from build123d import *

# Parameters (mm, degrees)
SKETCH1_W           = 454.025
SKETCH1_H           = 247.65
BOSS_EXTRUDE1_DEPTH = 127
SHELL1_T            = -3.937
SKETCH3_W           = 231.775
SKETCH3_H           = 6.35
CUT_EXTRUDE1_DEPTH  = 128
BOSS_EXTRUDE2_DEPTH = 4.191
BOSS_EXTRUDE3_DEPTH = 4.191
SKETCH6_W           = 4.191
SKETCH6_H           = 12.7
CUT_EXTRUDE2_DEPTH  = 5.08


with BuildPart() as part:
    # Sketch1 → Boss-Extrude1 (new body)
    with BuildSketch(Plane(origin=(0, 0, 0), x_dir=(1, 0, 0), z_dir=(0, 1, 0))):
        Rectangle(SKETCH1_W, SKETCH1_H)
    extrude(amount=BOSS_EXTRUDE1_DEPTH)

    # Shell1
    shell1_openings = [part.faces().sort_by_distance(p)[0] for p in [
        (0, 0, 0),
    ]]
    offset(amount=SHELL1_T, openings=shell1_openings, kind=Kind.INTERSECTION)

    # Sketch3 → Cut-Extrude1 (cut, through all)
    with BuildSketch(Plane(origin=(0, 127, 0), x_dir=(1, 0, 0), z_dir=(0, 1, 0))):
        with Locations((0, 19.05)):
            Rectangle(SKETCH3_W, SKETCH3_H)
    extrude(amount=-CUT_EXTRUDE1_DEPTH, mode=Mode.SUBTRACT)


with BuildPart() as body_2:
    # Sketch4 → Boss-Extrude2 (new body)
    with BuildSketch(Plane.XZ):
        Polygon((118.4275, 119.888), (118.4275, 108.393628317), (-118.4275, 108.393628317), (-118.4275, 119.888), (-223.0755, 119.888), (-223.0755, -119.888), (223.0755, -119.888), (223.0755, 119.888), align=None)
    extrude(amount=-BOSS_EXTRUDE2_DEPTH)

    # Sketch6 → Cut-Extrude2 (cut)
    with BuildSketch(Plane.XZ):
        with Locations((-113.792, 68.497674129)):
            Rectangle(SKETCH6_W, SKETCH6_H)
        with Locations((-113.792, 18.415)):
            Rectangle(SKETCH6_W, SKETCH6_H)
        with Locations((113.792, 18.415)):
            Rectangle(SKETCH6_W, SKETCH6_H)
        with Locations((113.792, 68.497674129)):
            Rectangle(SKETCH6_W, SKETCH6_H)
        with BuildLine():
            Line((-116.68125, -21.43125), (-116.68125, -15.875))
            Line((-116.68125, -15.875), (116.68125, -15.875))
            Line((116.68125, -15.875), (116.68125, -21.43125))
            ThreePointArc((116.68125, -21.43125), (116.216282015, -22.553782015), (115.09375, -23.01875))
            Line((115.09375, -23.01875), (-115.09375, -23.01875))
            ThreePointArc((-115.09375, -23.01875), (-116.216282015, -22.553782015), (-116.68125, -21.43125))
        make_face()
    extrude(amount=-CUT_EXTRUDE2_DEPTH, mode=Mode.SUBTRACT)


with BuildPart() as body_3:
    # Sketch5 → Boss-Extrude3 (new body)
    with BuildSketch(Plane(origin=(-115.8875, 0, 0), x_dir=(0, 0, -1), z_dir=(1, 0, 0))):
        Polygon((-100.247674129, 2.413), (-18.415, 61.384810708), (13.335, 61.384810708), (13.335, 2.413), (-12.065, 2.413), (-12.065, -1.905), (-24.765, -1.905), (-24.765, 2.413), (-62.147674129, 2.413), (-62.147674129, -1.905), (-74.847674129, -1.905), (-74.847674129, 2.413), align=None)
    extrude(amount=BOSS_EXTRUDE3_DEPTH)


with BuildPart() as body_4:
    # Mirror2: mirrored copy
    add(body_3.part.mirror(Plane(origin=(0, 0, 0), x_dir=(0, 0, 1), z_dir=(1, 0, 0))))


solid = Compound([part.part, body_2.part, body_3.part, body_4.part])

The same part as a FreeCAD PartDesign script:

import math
import FreeCAD as App
import Part
import Sketcher
Q = App.Units.Quantity


def faces_at(feature, points):
    """Names of the faces that lie closest to the given points."""
    faces = feature.Shape.Faces
    near = lambda p: min(range(len(faces)), key=lambda i: faces[i].distToShape(Part.Vertex(*p))[0])
    return sorted({f"Face{near(p) + 1}" for p in points})

doc = App.newDocument("Part")
body = doc.addObject("PartDesign::Body", "Body")

# Sketch on XZ plane
sketch1 = body.newObject("Sketcher::SketchObject", "Sketch")
sketch1.AttachmentSupport = (doc.getObject("XZ_Plane"), [""])
sketch1.MapMode = "FlatFace"
sketch1.addGeometry([
    Part.LineSegment(App.Vector(-227.0125, -123.825, 0), App.Vector(-227.0125, 123.825, 0)),
    Part.LineSegment(App.Vector(-227.0125, 123.825, 0), App.Vector(227.0125, 123.825, 0)),
    Part.LineSegment(App.Vector(227.0125, 123.825, 0), App.Vector(227.0125, -123.825, 0)),
    Part.LineSegment(App.Vector(227.0125, -123.825, 0), App.Vector(-227.0125, -123.825, 0)),
], False)
sketch1.addConstraint([
    Sketcher.Constraint("Coincident", 0, 2, 1, 1),
    Sketcher.Constraint("Coincident", 1, 2, 2, 1),
    Sketcher.Constraint("Coincident", 2, 2, 3, 1),
    Sketcher.Constraint("Coincident", 3, 2, 0, 1),
    Sketcher.Constraint("Vertical", 0),
    Sketcher.Constraint("Horizontal", 1),
    Sketcher.Constraint("Vertical", 2),
    Sketcher.Constraint("Horizontal", 3),
    Sketcher.Constraint("Symmetric", 0, 2, 2, 2, -1, 1),
    Sketcher.Constraint("DistanceY", 0, 1, 0, 2, Q("9.75 in")),
    Sketcher.Constraint("DistanceX", 1, 1, 1, 2, Q("17.875 in")),
])
pad1 = body.newObject("PartDesign::Pad", "Pad")
pad1.Profile = sketch1
pad1.Length = Q("5 in")
pad1.Reversed = True
doc.recompute()

thickness = body.newObject("PartDesign::Thickness", "Thickness")
thickness.Base = (pad1, faces_at(pad1, [(0, 0, 0)]))
thickness.Value = Q("0.155 in")
thickness.Reversed = True
thickness.Join = "Intersection"

# Sketch on XZ plane
sketch2 = body.newObject("Sketcher::SketchObject", "Sketch001")
sketch2.AttachmentSupport = (doc.getObject("XZ_Plane"), [""])
sketch2.MapMode = "FlatFace"
sketch2.AttachmentOffset = App.Placement(App.Vector(0, 0, -5 * 25.4), App.Rotation())
sketch2.addGeometry([
    Part.LineSegment(App.Vector(-115.8875, -22.225, 0), App.Vector(-115.8875, -15.875, 0)),
    Part.LineSegment(App.Vector(-115.8875, -15.875, 0), App.Vector(115.8875, -15.875, 0)),
    Part.LineSegment(App.Vector(115.8875, -15.875, 0), App.Vector(115.8875, -22.225, 0)),
    Part.LineSegment(App.Vector(115.8875, -22.225, 0), App.Vector(-115.8875, -22.225, 0)),
], False)
sketch2.addConstraint([
    Sketcher.Constraint("Coincident", 0, 2, 1, 1),
    Sketcher.Constraint("Coincident", 1, 2, 2, 1),
    Sketcher.Constraint("Coincident", 2, 2, 3, 1),
    Sketcher.Constraint("Coincident", 3, 2, 0, 1),
    Sketcher.Constraint("Vertical", 0),
    Sketcher.Constraint("Horizontal", 1),
    Sketcher.Constraint("Vertical", 2),
    Sketcher.Constraint("Horizontal", 3),
    Sketcher.Constraint("DistanceY", 0, 1, 0, 2, Q("0.25 in")),
    Sketcher.Constraint("DistanceX", 1, 1, 1, 2, Q("9.125 in")),
    Sketcher.Constraint("DistanceX", 0, 2, -1, 1, Q("4.5625 in")),
    Sketcher.Constraint("DistanceY", 0, 2, -1, 1, Q("0.625 in")),
])
pocket1 = body.newObject("PartDesign::Pocket", "Pocket")
pocket1.Profile = sketch2
pocket1.Type = "ThroughAll"
pocket1.Reversed = True
body2 = doc.addObject("PartDesign::Body", "Body001")

# Sketch on XZ plane
sketch3 = body2.newObject("Sketcher::SketchObject", "Sketch002")
sketch3.AttachmentSupport = (doc.getObject("XZ_Plane001"), [""])
sketch3.MapMode = "FlatFace"
sketch3.addGeometry([
    Part.LineSegment(App.Vector(118.4275, 119.888, 0), App.Vector(118.4275, 108.393628, 0)),  # 0
    Part.LineSegment(App.Vector(118.4275, 108.393628, 0), App.Vector(-118.4275, 108.393628, 0)),  # 1
    Part.LineSegment(App.Vector(-118.4275, 108.393628, 0), App.Vector(-118.4275, 119.888, 0)),  # 2
    Part.LineSegment(App.Vector(-118.4275, 119.888, 0), App.Vector(-223.0755, 119.888, 0)),  # 3
    Part.LineSegment(App.Vector(-223.0755, 119.888, 0), App.Vector(-223.0755, -119.888, 0)),  # 4
    Part.LineSegment(App.Vector(-223.0755, -119.888, 0), App.Vector(223.0755, -119.888, 0)),  # 5
    Part.LineSegment(App.Vector(223.0755, -119.888, 0), App.Vector(223.0755, 119.888, 0)),  # 6
    Part.LineSegment(App.Vector(223.0755, 119.888, 0), App.Vector(118.4275, 119.888, 0)),  # 7
], False)
sketch3.addConstraint([
    Sketcher.Constraint("Coincident", 0, 2, 1, 1),
    Sketcher.Constraint("Coincident", 1, 2, 2, 1),
    Sketcher.Constraint("Coincident", 2, 2, 3, 1),
    Sketcher.Constraint("Coincident", 3, 2, 4, 1),
    Sketcher.Constraint("Coincident", 4, 2, 5, 1),
    Sketcher.Constraint("Coincident", 5, 2, 6, 1),
    Sketcher.Constraint("Coincident", 6, 2, 7, 1),
    Sketcher.Constraint("Coincident", 7, 2, 0, 1),
    Sketcher.Constraint("Vertical", 0),
    Sketcher.Constraint("Horizontal", 1),
    Sketcher.Constraint("Vertical", 2),
    Sketcher.Constraint("Horizontal", 3),
    Sketcher.Constraint("Vertical", 4),
    Sketcher.Constraint("Horizontal", 5),
    Sketcher.Constraint("Vertical", 6),
    Sketcher.Constraint("Horizontal", 7),
    Sketcher.Constraint("Symmetric", 3, 2, 5, 2, -1, 1),
    Sketcher.Constraint("Symmetric", 2, 2, 7, 2, -2),
    Sketcher.Constraint("DistanceX", 3, 2, 3, 1, Q("4.12 in")),
    Sketcher.Constraint("DistanceY", 4, 2, 4, 1, Q("9.44 in")),
    Sketcher.Constraint("DistanceX", 1, 2, 1, 1, Q("9.325 in")),
    Sketcher.Constraint("DistanceY", 0, 2, 0, 1, Q("11.494372 mm")),
])
pad2 = body2.newObject("PartDesign::Pad", "Pad001")
pad2.Profile = sketch3
pad2.Length = Q("0.165 in")
pad2.Reversed = True

# Sketch on XZ plane
sketch4 = body2.newObject("Sketcher::SketchObject", "Sketch003")
sketch4.AttachmentSupport = (doc.getObject("XZ_Plane001"), [""])
sketch4.MapMode = "FlatFace"
sketch4.addGeometry([
    Part.LineSegment(App.Vector(-115.8875, 74.847674, 0), App.Vector(-115.8875, 62.147674, 0)),  # 0
    Part.LineSegment(App.Vector(-115.8875, 62.147674, 0), App.Vector(-111.6965, 62.147674, 0)),  # 1
    Part.LineSegment(App.Vector(-111.6965, 62.147674, 0), App.Vector(-111.6965, 74.847674, 0)),  # 2
    Part.LineSegment(App.Vector(-111.6965, 74.847674, 0), App.Vector(-115.8875, 74.847674, 0)),  # 3
    Part.LineSegment(App.Vector(-115.8875, 24.765, 0), App.Vector(-115.8875, 12.065, 0)),  # 4
    Part.LineSegment(App.Vector(-115.8875, 12.065, 0), App.Vector(-111.6965, 12.065, 0)),  # 5
    Part.LineSegment(App.Vector(-111.6965, 12.065, 0), App.Vector(-111.6965, 24.765, 0)),  # 6
    Part.LineSegment(App.Vector(-111.6965, 24.765, 0), App.Vector(-115.8875, 24.765, 0)),  # 7
    Part.LineSegment(App.Vector(111.6965, 24.765, 0), App.Vector(111.6965, 12.065, 0)),  # 8
    Part.LineSegment(App.Vector(111.6965, 12.065, 0), App.Vector(115.8875, 12.065, 0)),  # 9
    Part.LineSegment(App.Vector(115.8875, 12.065, 0), App.Vector(115.8875, 24.765, 0)),  # 10
    Part.LineSegment(App.Vector(115.8875, 24.765, 0), App.Vector(111.6965, 24.765, 0)),  # 11
    Part.LineSegment(App.Vector(111.6965, 74.847674, 0), App.Vector(111.6965, 62.147674, 0)),  # 12
    Part.LineSegment(App.Vector(111.6965, 62.147674, 0), App.Vector(115.8875, 62.147674, 0)),  # 13
    Part.LineSegment(App.Vector(115.8875, 62.147674, 0), App.Vector(115.8875, 74.847674, 0)),  # 14
    Part.LineSegment(App.Vector(115.8875, 74.847674, 0), App.Vector(111.6965, 74.847674, 0)),  # 15
    Part.LineSegment(App.Vector(-116.68125, -15.875, 0), App.Vector(-116.68125, -21.43125, 0)),  # 16
    Part.ArcOfCircle(Part.Circle(App.Vector(-115.09375, -21.43125, 0), App.Vector(0, 0, 1), 1.5875), math.radians(180), math.radians(270)),  # 17
    Part.LineSegment(App.Vector(-115.09375, -23.01875, 0), App.Vector(115.09375, -23.01875, 0)),  # 18
    Part.ArcOfCircle(Part.Circle(App.Vector(115.09375, -21.43125, 0), App.Vector(0, 0, 1), 1.5875), math.radians(-90), math.radians(0)),  # 19
    Part.LineSegment(App.Vector(116.68125, -21.43125, 0), App.Vector(116.68125, -15.875, 0)),  # 20
    Part.LineSegment(App.Vector(116.68125, -15.875, 0), App.Vector(-116.68125, -15.875, 0)),  # 21
], False)
sketch4.addConstraint([
    Sketcher.Constraint("Coincident", 0, 2, 1, 1),
    Sketcher.Constraint("Coincident", 1, 2, 2, 1),
    Sketcher.Constraint("Coincident", 2, 2, 3, 1),
    Sketcher.Constraint("Coincident", 3, 2, 0, 1),
    Sketcher.Constraint("Coincident", 4, 2, 5, 1),
    Sketcher.Constraint("Coincident", 5, 2, 6, 1),
    Sketcher.Constraint("Coincident", 6, 2, 7, 1),
    Sketcher.Constraint("Coincident", 7, 2, 4, 1),
    Sketcher.Constraint("Coincident", 8, 2, 9, 1),
    Sketcher.Constraint("Coincident", 9, 2, 10, 1),
    Sketcher.Constraint("Coincident", 10, 2, 11, 1),
    Sketcher.Constraint("Coincident", 11, 2, 8, 1),
    Sketcher.Constraint("Coincident", 12, 2, 13, 1),
    Sketcher.Constraint("Coincident", 13, 2, 14, 1),
    Sketcher.Constraint("Coincident", 14, 2, 15, 1),
    Sketcher.Constraint("Coincident", 15, 2, 12, 1),
    Sketcher.Constraint("Tangent", 16, 2, 17, 1),
    Sketcher.Constraint("Tangent", 17, 2, 18, 1),
    Sketcher.Constraint("Tangent", 18, 2, 19, 1),
    Sketcher.Constraint("Tangent", 19, 2, 20, 1),
    Sketcher.Constraint("Coincident", 20, 2, 21, 1),
    Sketcher.Constraint("Coincident", 21, 2, 16, 1),
    Sketcher.Constraint("Vertical", 0),
    Sketcher.Constraint("Horizontal", 1),
    Sketcher.Constraint("Vertical", 2),
    Sketcher.Constraint("Horizontal", 3),
    Sketcher.Constraint("Vertical", 4),
    Sketcher.Constraint("Horizontal", 5),
    Sketcher.Constraint("Vertical", 6),
    Sketcher.Constraint("Horizontal", 7),
    Sketcher.Constraint("Vertical", 8),
    Sketcher.Constraint("Horizontal", 9),
    Sketcher.Constraint("Vertical", 10),
    Sketcher.Constraint("Horizontal", 11),
    Sketcher.Constraint("Vertical", 12),
    Sketcher.Constraint("Horizontal", 13),
    Sketcher.Constraint("Vertical", 14),
    Sketcher.Constraint("Horizontal", 15),
    Sketcher.Constraint("Vertical", 16),
    Sketcher.Constraint("Horizontal", 18),
    Sketcher.Constraint("Vertical", 20),
    Sketcher.Constraint("Horizontal", 21),
    Sketcher.Constraint("Equal", 17, 19),
    Sketcher.Constraint("Symmetric", 5, 2, 8, 2, -2),
    Sketcher.Constraint("Symmetric", 7, 2, 10, 2, -2),
    Sketcher.Constraint("Symmetric", 1, 2, 12, 2, -2),
    Sketcher.Constraint("Symmetric", 3, 2, 14, 2, -2),
    Sketcher.Constraint("Vertical", 3, 2, 4, 2),
    Sketcher.Constraint("Vertical", 2, 2, 5, 2),
    Sketcher.Constraint("Equal", 2, 4),
    Sketcher.Constraint("DistanceY", 0, 2, 0, 1, Q("0.5 in")),
    Sketcher.Constraint("Radius", 17, Q("0.0625 in")),
    Sketcher.Constraint("DistanceY", 20, 2, 9, 2, Q("1.1 in")),
    Sketcher.Constraint("DistanceX", 1, 1, 1, 2, Q("0.165 in")),
    Sketcher.Constraint("DistanceX", 18, 1, 18, 2, Q("9.0625 in")),
    Sketcher.Constraint("DistanceY", 16, 2, 16, 1, Q("0.21875 in")),
    Sketcher.Constraint("DistanceX", 4, 2, 8, 2, Q("8.96 in")),
    Sketcher.Constraint("DistanceX", 17, 3, -1, 1, Q("4.53125 in")),
    Sketcher.Constraint("DistanceY", 17, 3, -1, 1, Q("0.84375 in")),
    Sketcher.Constraint("DistanceY", -1, 1, 0, 2, Q("62.147674 mm")),
])
pocket2 = body2.newObject("PartDesign::Pocket", "Pocket001")
pocket2.Profile = sketch4
pocket2.Length = Q("0.2 in")
body3 = doc.addObject("PartDesign::Body", "Body002")

# Sketch on YZ plane
sketch5 = body3.newObject("Sketcher::SketchObject", "Sketch004")
sketch5.AttachmentSupport = (doc.getObject("YZ_Plane002"), [""])
sketch5.MapMode = "FlatFace"
sketch5.AttachmentOffset = App.Placement(App.Vector(0, 0, -4.5625 * 25.4), App.Rotation())
sketch5.addGeometry([
    Part.LineSegment(App.Vector(61.384811, 18.415, 0), App.Vector(2.413, 100.247674, 0)),  # 0
    Part.LineSegment(App.Vector(2.413, 100.247674, 0), App.Vector(2.413, 74.847674, 0)),  # 1
    Part.LineSegment(App.Vector(2.413, 74.847674, 0), App.Vector(-1.905, 74.847674, 0)),  # 2
    Part.LineSegment(App.Vector(-1.905, 74.847674, 0), App.Vector(-1.905, 62.147674, 0)),  # 3
    Part.LineSegment(App.Vector(-1.905, 62.147674, 0), App.Vector(2.413, 62.147674, 0)),  # 4
    Part.LineSegment(App.Vector(2.413, 62.147674, 0), App.Vector(2.413, 24.765, 0)),  # 5
    Part.LineSegment(App.Vector(2.413, 24.765, 0), App.Vector(-1.905, 24.765, 0)),  # 6
    Part.LineSegment(App.Vector(-1.905, 24.765, 0), App.Vector(-1.905, 12.065, 0)),  # 7
    Part.LineSegment(App.Vector(-1.905, 12.065, 0), App.Vector(2.413, 12.065, 0)),  # 8
    Part.LineSegment(App.Vector(2.413, 12.065, 0), App.Vector(2.413, -13.335, 0)),  # 9
    Part.LineSegment(App.Vector(2.413, -13.335, 0), App.Vector(61.384811, -13.335, 0)),  # 10
    Part.LineSegment(App.Vector(61.384811, -13.335, 0), App.Vector(61.384811, 18.415, 0)),  # 11
], False)
sketch5.addConstraint([
    Sketcher.Constraint("Coincident", 0, 2, 1, 1),
    Sketcher.Constraint("Coincident", 1, 2, 2, 1),
    Sketcher.Constraint("Coincident", 2, 2, 3, 1),
    Sketcher.Constraint("Coincident", 3, 2, 4, 1),
    Sketcher.Constraint("Coincident", 4, 2, 5, 1),
    Sketcher.Constraint("Coincident", 5, 2, 6, 1),
    Sketcher.Constraint("Coincident", 6, 2, 7, 1),
    Sketcher.Constraint("Coincident", 7, 2, 8, 1),
    Sketcher.Constraint("Coincident", 8, 2, 9, 1),
    Sketcher.Constraint("Coincident", 9, 2, 10, 1),
    Sketcher.Constraint("Coincident", 10, 2, 11, 1),
    Sketcher.Constraint("Coincident", 11, 2, 0, 1),
    Sketcher.Constraint("Vertical", 1),
    Sketcher.Constraint("Horizontal", 2),
    Sketcher.Constraint("Vertical", 3),
    Sketcher.Constraint("Horizontal", 4),
    Sketcher.Constraint("Vertical", 5),
    Sketcher.Constraint("Horizontal", 6),
    Sketcher.Constraint("Vertical", 7),
    Sketcher.Constraint("Horizontal", 8),
    Sketcher.Constraint("Vertical", 9),
    Sketcher.Constraint("Horizontal", 10),
    Sketcher.Constraint("Vertical", 11),
    Sketcher.Constraint("Vertical", 1, 2, 4, 2),
    Sketcher.Constraint("Vertical", 3, 2, 6, 2),
    Sketcher.Constraint("Vertical", 5, 2, 8, 2),
    Sketcher.Constraint("Equal", 3, 7),
    Sketcher.Constraint("Equal", 1, 9),
    Sketcher.Constraint("DistanceY", 1, 2, 1, 1, Q("1 in")),
    Sketcher.Constraint("DistanceY", 3, 2, 3, 1, Q("0.5 in")),
    Sketcher.Constraint("DistanceX", 2, 2, 2, 1, Q("0.17 in")),
    Sketcher.Constraint("DistanceY", 11, 1, 11, 2, Q("1.25 in")),
    Sketcher.Constraint("DistanceX", -1, 1, 0, 2, Q("0.095 in")),
    Sketcher.Constraint("DistanceY", -1, 1, 5, 2, Q("0.975 in")),
    Sketcher.Constraint("DistanceX", 10, 1, 10, 2, Q("58.971811 mm")),
    Sketcher.Constraint("Distance", 0, Q("100.867542 mm")),
])
pad3 = body3.newObject("PartDesign::Pad", "Pad002")
pad3.Profile = sketch5
pad3.Length = Q("0.165 in")
body4 = doc.addObject("PartDesign::Body", "Body003")
doc.recompute()

mirroring = doc.addObject("Part::Mirroring", "Mirroring")
mirroring.Source = body3
mirroring.Base = App.Vector(0, 0, 0)
mirroring.Normal = App.Vector(1, 0, 0)
body4.BaseFeature = mirroring
doc.recompute()
mirroring.Visibility = False

doc.recompute()
